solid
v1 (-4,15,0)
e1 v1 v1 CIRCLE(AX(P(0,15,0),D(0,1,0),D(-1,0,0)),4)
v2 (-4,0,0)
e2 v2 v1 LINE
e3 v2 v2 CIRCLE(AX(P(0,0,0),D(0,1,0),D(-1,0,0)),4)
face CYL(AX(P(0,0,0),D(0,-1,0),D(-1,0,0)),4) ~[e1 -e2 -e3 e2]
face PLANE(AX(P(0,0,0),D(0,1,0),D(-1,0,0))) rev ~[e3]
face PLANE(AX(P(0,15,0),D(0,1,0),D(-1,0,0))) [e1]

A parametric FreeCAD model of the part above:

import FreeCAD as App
import Part
import Sketcher

V = App.Vector

doc = App.newDocument("Part")
params = doc.addObject("Spreadsheet::Sheet", "Params")
for row, (alias, value) in enumerate([
    ("sketch1_diameter", "8 mm"),
    ("pad1_length", "15 mm"),
], start=1):
    params.set(f"A{row}", alias)
    params.set(f"B{row}", "=" + value)
    params.setAlias(f"B{row}", alias)

body = doc.addObject("PartDesign::Body", "Body")

# Sketch on XZ plane
sketch1 = doc.addObject("Sketcher::SketchObject", "Sketch")
body.addObject(sketch1)
sketch1.AttachmentSupport = (doc.XZ_Plane, [""])
sketch1.MapMode = "FlatFace"
sketch1.addGeometry(Part.Circle(V(0, 0, 0), V(0, 0, 1), 4), False)
sketch1.addConstraint([
    Sketcher.Constraint("Coincident", 0, 3, -1, 1),
    Sketcher.Constraint("Diameter", 0, 8.0),
])
sketch1.setExpression("Constraints[1]", "Params.sketch1_diameter")
pad1 = doc.addObject("PartDesign::Pad", "Pad")
body.addObject(pad1)
pad1.Profile = sketch1
pad1.setExpression("Length", "Params.pad1_length")
pad1.Reversed = True

doc.recompute()
